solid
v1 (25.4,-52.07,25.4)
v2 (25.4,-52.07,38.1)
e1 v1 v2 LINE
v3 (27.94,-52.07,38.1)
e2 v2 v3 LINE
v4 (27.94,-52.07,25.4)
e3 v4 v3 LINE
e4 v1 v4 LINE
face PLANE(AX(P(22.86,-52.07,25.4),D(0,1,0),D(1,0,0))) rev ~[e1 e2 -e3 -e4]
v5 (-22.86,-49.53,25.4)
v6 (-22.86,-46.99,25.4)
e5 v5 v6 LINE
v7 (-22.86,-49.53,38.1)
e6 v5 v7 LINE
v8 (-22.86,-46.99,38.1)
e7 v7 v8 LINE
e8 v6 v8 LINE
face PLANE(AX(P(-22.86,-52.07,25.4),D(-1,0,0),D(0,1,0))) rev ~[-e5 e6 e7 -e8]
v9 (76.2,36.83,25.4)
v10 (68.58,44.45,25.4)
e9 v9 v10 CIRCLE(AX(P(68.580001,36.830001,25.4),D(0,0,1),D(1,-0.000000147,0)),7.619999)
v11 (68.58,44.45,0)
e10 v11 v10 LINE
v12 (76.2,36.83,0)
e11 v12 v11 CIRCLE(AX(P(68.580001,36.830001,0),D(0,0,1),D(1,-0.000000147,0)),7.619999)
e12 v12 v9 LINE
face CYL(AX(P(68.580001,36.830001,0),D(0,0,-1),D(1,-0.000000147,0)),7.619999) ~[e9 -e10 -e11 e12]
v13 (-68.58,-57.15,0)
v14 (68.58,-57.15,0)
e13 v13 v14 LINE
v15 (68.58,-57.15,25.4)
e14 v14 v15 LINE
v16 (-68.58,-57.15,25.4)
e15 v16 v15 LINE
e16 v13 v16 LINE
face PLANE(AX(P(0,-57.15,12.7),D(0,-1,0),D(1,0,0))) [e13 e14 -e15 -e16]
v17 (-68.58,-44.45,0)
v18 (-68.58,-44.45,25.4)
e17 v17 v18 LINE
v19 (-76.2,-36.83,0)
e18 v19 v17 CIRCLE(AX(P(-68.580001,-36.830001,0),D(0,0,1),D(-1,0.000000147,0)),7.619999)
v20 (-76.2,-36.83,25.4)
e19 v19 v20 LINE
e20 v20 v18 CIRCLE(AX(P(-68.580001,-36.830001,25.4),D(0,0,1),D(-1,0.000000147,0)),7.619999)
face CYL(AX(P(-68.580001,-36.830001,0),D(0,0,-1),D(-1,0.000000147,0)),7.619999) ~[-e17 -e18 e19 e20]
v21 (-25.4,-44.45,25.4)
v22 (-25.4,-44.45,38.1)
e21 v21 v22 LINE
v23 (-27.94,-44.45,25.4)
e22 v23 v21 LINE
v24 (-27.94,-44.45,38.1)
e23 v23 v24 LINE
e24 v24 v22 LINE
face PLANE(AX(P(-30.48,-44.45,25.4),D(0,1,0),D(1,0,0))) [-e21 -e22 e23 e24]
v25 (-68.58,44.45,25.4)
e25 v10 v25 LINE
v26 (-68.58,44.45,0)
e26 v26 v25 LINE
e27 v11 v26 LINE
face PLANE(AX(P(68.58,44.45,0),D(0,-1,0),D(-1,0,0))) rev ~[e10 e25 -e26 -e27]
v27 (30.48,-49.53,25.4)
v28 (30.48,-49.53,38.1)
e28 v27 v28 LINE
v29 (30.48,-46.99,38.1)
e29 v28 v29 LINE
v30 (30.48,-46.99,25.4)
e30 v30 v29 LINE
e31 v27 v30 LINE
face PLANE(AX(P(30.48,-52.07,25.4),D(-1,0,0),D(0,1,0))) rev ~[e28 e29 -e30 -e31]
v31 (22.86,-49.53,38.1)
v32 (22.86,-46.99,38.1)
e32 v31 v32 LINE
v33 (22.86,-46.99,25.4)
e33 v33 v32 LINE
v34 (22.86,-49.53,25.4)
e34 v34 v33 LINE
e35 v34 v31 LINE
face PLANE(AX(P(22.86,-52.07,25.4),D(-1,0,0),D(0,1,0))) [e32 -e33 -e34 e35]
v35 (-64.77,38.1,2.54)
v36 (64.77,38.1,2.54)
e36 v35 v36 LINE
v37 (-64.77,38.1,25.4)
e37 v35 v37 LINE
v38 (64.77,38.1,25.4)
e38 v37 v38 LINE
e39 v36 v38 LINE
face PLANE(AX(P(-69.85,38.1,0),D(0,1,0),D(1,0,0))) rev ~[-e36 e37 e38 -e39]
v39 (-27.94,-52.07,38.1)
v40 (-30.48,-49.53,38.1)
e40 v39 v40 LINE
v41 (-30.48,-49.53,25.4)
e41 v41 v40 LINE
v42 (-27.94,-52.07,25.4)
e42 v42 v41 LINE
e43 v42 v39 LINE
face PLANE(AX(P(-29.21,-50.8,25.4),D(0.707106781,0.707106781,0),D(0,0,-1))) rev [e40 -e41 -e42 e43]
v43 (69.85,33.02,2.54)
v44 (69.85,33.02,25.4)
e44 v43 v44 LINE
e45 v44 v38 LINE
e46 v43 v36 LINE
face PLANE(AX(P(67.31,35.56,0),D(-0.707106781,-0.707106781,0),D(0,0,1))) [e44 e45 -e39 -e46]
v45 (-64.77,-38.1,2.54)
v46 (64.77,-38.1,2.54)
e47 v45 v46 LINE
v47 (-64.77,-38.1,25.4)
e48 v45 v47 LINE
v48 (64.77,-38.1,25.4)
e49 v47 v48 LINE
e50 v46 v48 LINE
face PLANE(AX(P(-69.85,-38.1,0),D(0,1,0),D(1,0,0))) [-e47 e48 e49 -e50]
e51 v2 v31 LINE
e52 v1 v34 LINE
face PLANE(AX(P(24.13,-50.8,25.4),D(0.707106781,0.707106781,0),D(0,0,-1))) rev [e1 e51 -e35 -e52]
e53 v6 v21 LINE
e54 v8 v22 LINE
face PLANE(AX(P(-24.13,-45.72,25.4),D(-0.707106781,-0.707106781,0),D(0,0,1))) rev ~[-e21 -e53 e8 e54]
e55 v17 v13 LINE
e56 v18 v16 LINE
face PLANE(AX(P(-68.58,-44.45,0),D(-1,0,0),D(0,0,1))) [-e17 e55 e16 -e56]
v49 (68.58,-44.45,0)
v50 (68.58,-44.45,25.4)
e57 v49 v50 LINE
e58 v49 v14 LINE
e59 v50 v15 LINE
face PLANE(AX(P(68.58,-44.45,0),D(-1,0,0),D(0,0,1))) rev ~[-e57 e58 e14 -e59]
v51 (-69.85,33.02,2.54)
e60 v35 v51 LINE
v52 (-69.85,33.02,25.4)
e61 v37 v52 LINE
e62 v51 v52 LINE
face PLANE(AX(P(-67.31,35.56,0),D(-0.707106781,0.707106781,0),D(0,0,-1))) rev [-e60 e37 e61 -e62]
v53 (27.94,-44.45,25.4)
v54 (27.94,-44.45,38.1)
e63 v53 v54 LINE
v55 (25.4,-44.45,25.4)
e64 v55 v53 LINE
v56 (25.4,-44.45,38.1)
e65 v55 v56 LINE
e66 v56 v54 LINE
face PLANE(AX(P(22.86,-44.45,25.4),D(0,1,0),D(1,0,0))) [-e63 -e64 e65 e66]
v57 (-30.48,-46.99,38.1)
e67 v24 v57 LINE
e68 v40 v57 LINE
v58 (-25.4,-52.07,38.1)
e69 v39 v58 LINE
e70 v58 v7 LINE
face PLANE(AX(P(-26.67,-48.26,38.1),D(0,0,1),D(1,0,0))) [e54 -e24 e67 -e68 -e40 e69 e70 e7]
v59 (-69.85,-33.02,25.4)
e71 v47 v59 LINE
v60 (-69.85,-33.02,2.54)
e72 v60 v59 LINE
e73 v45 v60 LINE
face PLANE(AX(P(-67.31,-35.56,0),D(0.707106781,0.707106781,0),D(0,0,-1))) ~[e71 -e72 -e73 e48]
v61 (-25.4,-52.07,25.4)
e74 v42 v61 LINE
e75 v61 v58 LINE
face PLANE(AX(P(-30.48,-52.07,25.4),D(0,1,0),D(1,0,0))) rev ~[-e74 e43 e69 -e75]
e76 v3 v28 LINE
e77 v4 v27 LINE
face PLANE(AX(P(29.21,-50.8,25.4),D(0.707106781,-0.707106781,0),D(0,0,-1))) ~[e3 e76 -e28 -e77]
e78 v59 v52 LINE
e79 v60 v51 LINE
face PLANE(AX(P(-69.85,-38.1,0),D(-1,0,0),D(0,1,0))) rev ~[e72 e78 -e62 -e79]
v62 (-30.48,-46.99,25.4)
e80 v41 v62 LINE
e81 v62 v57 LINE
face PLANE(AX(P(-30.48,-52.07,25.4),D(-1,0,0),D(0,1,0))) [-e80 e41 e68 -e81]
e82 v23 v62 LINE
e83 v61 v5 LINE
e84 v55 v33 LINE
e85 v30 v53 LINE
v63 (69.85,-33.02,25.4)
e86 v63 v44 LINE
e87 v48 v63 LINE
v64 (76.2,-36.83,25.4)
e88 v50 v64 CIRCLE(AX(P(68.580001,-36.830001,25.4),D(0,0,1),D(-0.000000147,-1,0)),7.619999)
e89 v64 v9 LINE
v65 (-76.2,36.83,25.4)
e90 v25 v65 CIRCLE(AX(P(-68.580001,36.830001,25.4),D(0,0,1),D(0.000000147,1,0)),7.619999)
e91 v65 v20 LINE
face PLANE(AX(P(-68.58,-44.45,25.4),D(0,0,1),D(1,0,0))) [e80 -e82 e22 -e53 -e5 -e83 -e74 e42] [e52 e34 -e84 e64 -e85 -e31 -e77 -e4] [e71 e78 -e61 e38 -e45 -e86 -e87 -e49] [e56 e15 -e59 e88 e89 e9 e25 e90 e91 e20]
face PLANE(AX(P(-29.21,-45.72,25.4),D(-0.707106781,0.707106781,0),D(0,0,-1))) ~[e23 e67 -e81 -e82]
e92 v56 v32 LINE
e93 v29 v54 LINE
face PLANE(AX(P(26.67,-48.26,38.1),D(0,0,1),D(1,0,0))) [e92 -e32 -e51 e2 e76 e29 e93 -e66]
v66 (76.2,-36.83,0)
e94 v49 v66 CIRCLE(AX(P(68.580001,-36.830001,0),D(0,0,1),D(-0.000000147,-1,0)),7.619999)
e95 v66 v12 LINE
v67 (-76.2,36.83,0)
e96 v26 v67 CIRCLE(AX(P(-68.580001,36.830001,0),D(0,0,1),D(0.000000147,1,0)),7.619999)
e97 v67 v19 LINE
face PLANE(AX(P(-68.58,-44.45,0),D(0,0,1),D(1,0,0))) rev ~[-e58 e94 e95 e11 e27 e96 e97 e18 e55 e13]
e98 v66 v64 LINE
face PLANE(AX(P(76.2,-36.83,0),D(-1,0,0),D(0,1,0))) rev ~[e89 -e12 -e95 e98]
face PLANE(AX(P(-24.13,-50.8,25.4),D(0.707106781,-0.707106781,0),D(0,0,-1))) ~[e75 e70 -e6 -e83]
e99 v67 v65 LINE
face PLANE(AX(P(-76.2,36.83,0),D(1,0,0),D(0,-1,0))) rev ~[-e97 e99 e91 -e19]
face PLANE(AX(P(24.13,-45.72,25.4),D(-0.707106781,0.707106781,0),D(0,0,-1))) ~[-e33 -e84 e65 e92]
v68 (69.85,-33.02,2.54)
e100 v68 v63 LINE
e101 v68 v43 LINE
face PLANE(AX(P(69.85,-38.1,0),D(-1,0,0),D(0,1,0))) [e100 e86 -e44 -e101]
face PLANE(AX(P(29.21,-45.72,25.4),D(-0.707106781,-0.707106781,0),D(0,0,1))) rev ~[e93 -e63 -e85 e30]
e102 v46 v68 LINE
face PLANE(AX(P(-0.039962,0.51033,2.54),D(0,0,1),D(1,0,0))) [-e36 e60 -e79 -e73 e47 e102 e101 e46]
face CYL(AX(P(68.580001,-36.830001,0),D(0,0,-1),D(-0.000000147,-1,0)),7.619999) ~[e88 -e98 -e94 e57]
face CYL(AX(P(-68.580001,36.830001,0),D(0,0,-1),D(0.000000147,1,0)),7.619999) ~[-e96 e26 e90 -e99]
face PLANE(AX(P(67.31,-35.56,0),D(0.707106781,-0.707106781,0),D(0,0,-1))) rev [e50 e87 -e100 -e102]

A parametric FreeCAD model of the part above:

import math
import FreeCAD as App
import Part
import Sketcher

V = App.Vector
Q = App.Units.Quantity


def edges_at(feature, points):
    """Names of the edges that pass closest to the given points."""
    edges = feature.Shape.Edges
    near = lambda p: min(range(len(edges)), key=lambda i: edges[i].distToShape(Part.Vertex(*p))[0])
    return sorted({f"Edge{near(p) + 1}" for p in points})

doc = App.newDocument("Part")
body = doc.addObject("PartDesign::Body", "Body")

# Sketch on XY plane
sketch1 = body.newObject("Sketcher::SketchObject", "Sketch")
sketch1.AttachmentSupport = (doc.getObject("XY_Plane"), [""])
sketch1.MapMode = "FlatFace"
sketch1.addGeometry(Part.ArcOfCircle(Part.Circle(V(69, 37, 0), V(0, 0, 1), 8), math.radians(0), math.radians(90)), False)
sketch1.addGeometry(Part.LineSegment(V(69, 44, 0), V(-69, 44, 0)), False)
sketch1.addGeometry(Part.ArcOfCircle(Part.Circle(V(-69, 37, 0), V(0, 0, 1), 8), math.radians(90), math.radians(180)), False)
sketch1.addGeometry(Part.LineSegment(V(-76, 37, 0), V(-76, -37, 0)), False)
sketch1.addGeometry(Part.ArcOfCircle(Part.Circle(V(-69, -37, 0), V(0, 0, 1), 8), math.radians(180), math.radians(270)), False)
sketch1.addGeometry(Part.LineSegment(V(-69, -44, 0), V(69, -44, 0)), False)
sketch1.addGeometry(Part.ArcOfCircle(Part.Circle(V(69, -37, 0), V(0, 0, 1), 8), math.radians(-90), math.radians(0)), False)
sketch1.addGeometry(Part.LineSegment(V(76, -37, 0), V(76, 37, 0)), False)
sketch1.addGeometry(Part.LineSegment(V(70, -38, 0), V(-70, -38, 0)), False)
sketch1.addGeometry(Part.LineSegment(V(-70, -38, 0), V(-70, 38, 0)), False)
sketch1.addGeometry(Part.LineSegment(V(-70, 38, 0), V(70, 38, 0)), False)
sketch1.addGeometry(Part.LineSegment(V(70, 38, 0), V(70, -38, 0)), False)
sketch1.addConstraint(Sketcher.Constraint("Tangent", 0, 2, 1, 1))
sketch1.addConstraint(Sketcher.Constraint("Tangent", 1, 2, 2, 1))
sketch1.addConstraint(Sketcher.Constraint("Tangent", 2, 2, 3, 1))
sketch1.addConstraint(Sketcher.Constraint("Tangent", 3, 2, 4, 1))
sketch1.addConstraint(Sketcher.Constraint("Tangent", 4, 2, 5, 1))
sketch1.addConstraint(Sketcher.Constraint("Tangent", 5, 2, 6, 1))
sketch1.addConstraint(Sketcher.Constraint("Tangent", 6, 2, 7, 1))
sketch1.addConstraint(Sketcher.Constraint("Tangent", 7, 2, 0, 1))
sketch1.addConstraint(Sketcher.Constraint("Coincident", 8, 2, 9, 1))
sketch1.addConstraint(Sketcher.Constraint("Coincident", 9, 2, 10, 1))
sketch1.addConstraint(Sketcher.Constraint("Coincident", 10, 2, 11, 1))
sketch1.addConstraint(Sketcher.Constraint("Coincident", 11, 2, 8, 1))
sketch1.addConstraint(Sketcher.Constraint("Horizontal", 1))
sketch1.addConstraint(Sketcher.Constraint("Vertical", 3))
sketch1.addConstraint(Sketcher.Constraint("Horizontal", 5))
sketch1.addConstraint(Sketcher.Constraint("Vertical", 7))
sketch1.addConstraint(Sketcher.Constraint("Horizontal", 8))
sketch1.addConstraint(Sketcher.Constraint("Vertical", 9))
sketch1.addConstraint(Sketcher.Constraint("Horizontal", 10))
sketch1.addConstraint(Sketcher.Constraint("Vertical", 11))
sketch1.addConstraint(Sketcher.Constraint("Equal", 0, 2))
sketch1.addConstraint(Sketcher.Constraint("Equal", 2, 4))
sketch1.addConstraint(Sketcher.Constraint("Equal", 4, 6))
sketch1.addConstraint(Sketcher.Constraint("Symmetric", 0, 3, 4, 3, -1, 1))
sketch1.addConstraint(Sketcher.Constraint("Symmetric", 8, 2, 10, 2, -1, 1))
sketch1.addConstraint(Sketcher.Constraint("Radius", 0, Q("0.3 in")))
sketch1.addConstraint(Sketcher.Constraint("DistanceY", 9, 1, 9, 2, Q("3 in")))
sketch1.addConstraint(Sketcher.Constraint("DistanceX", 1, 2, 1, 1, Q("5.4 in")))
sketch1.addConstraint(Sketcher.Constraint("DistanceX", 8, 2, 8, 1, Q("5.5 in")))
sketch1.addConstraint(Sketcher.Constraint("DistanceY", 3, 2, 3, 1, Q("2.9 in")))
pad1 = body.newObject("PartDesign::Pad", "Pad")
pad1.Profile = sketch1
pad1.Length = Q("1 in")
doc.recompute()

chamfer = body.newObject("PartDesign::Chamfer", "Chamfer")
chamfer.Base = (pad1, edges_at(pad1, [
    (-69.85, 38.1, 12.7),
    (-69.85, -38.1, 12.7),
    (69.85, 38.1, 12.7),
    (69.85, -38.1, 12.7),
]))
chamfer.Size = Q("0.2 in")

# Sketch on XY plane
sketch2 = body.newObject("Sketcher::SketchObject", "Sketch001")
sketch2.AttachmentSupport = (doc.getObject("XY_Plane"), [""])
sketch2.MapMode = "FlatFace"
sketch2.addGeometry(Part.LineSegment(V(-72, 41, 0), V(-72, -40, 0)), False)
sketch2.addGeometry(Part.LineSegment(V(-72, -40, 0), V(72, -40, 0)), False)
sketch2.addGeometry(Part.LineSegment(V(72, -40, 0), V(72, 41, 0)), False)
sketch2.addGeometry(Part.LineSegment(V(72, 41, 0), V(-72, 41, 0)), False)
sketch2.addConstraint(Sketcher.Constraint("Coincident", 0, 2, 1, 1))
sketch2.addConstraint(Sketcher.Constraint("Coincident", 1, 2, 2, 1))
sketch2.addConstraint(Sketcher.Constraint("Coincident", 2, 2, 3, 1))
sketch2.addConstraint(Sketcher.Constraint("Coincident", 3, 2, 0, 1))
sketch2.addConstraint(Sketcher.Constraint("Vertical", 0))
sketch2.addConstraint(Sketcher.Constraint("Horizontal", 1))
sketch2.addConstraint(Sketcher.Constraint("Vertical", 2))
sketch2.addConstraint(Sketcher.Constraint("Horizontal", 3))
sketch2.addConstraint(Sketcher.Constraint("DistanceY", 0, 2, 0, 1, Q("81.529271 mm")))
sketch2.addConstraint(Sketcher.Constraint("DistanceX", -1, 1, 1, 2, Q("72.1056 mm")))
sketch2.addConstraint(Sketcher.Constraint("DistanceX", 1, 1, 1, 2, Q("144.291125 mm")))
sketch2.addConstraint(Sketcher.Constraint("DistanceY", 0, 2, -1, 1, Q("40.254306 mm")))
pad2 = body.newObject("PartDesign::Pad", "Pad001")
pad2.Profile = sketch2
pad2.Length = Q("0.1 in")

# Sketch on XZ plane
sketch3 = body.newObject("Sketcher::SketchObject", "Sketch002")
sketch3.AttachmentSupport = (doc.getObject("XZ_Plane"), [""])
sketch3.MapMode = "FlatFace"
sketch3.AttachmentOffset = App.Placement(V(0, 0, 1.75 * 25.4), App.Rotation())
sketch3.addGeometry(Part.LineSegment(V(-69, 25, 0), V(-69, 0, 0)), False)
sketch3.addGeometry(Part.LineSegment(V(-69, 0, 0), V(69, 0, 0)), False)
sketch3.addGeometry(Part.LineSegment(V(69, 0, 0), V(69, 25, 0)), False)
sketch3.addGeometry(Part.LineSegment(V(69, 25, 0), V(-69, 25, 0)), False)
sketch3.addConstraint(Sketcher.Constraint("Coincident", 0, 2, 1, 1))
sketch3.addConstraint(Sketcher.Constraint("Coincident", 1, 2, 2, 1))
sketch3.addConstraint(Sketcher.Constraint("Coincident", 2, 2, 3, 1))
sketch3.addConstraint(Sketcher.Constraint("Coincident", 3, 2, 0, 1))
sketch3.addConstraint(Sketcher.Constraint("Vertical", 0))
sketch3.addConstraint(Sketcher.Constraint("Horizontal", 1))
sketch3.addConstraint(Sketcher.Constraint("Vertical", 2))
sketch3.addConstraint(Sketcher.Constraint("Horizontal", 3))
sketch3.addConstraint(Sketcher.Constraint("Symmetric", 0, 2, 1, 2, -1, 1))
sketch3.addConstraint(Sketcher.Constraint("DistanceY", 0, 2, 0, 1, Q("1 in")))
sketch3.addConstraint(Sketcher.Constraint("DistanceX", 1, 1, 1, 2, Q("5.4 in")))
pad3 = body.newObject("PartDesign::Pad", "Pad002")
pad3.Profile = sketch3
pad3.Length = Q("0.5 in")

# Sketch on XY plane
sketch4 = body.newObject("Sketcher::SketchObject", "Sketch003")
sketch4.AttachmentSupport = (doc.getObject("XY_Plane"), [""])
sketch4.MapMode = "FlatFace"
sketch4.AttachmentOffset = App.Placement(V(0, 0, 1 * 25.4), App.Rotation())
sketch4.addGeometry(Part.LineSegment(V(23, -44, 0), V(23, -52, 0)), False)
sketch4.addGeometry(Part.LineSegment(V(23, -52, 0), V(30, -52, 0)), False)
sketch4.addGeometry(Part.LineSegment(V(30, -52, 0), V(30, -44, 0)), False)
sketch4.addGeometry(Part.LineSegment(V(30, -44, 0), V(23, -44, 0)), False)
sketch4.addGeometry(Part.LineSegment(V(-30, -44, 0), V(-30, -52, 0)), False)
sketch4.addGeometry(Part.LineSegment(V(-30, -52, 0), V(-23, -52, 0)), False)
sketch4.addGeometry(Part.LineSegment(V(-23, -52, 0), V(-23, -44, 0)), False)
sketch4.addGeometry(Part.LineSegment(V(-23, -44, 0), V(-30, -44, 0)), False)
sketch4.addConstraint(Sketcher.Constraint("Coincident", 0, 2, 1, 1))
sketch4.addConstraint(Sketcher.Constraint("Coincident", 1, 2, 2, 1))
sketch4.addConstraint(Sketcher.Constraint("Coincident", 2, 2, 3, 1))
sketch4.addConstraint(Sketcher.Constraint("Coincident", 3, 2, 0, 1))
sketch4.addConstraint(Sketcher.Constraint("Coincident", 4, 2, 5, 1))
sketch4.addConstraint(Sketcher.Constraint("Coincident", 5, 2, 6, 1))
sketch4.addConstraint(Sketcher.Constraint("Coincident", 6, 2, 7, 1))
sketch4.addConstraint(Sketcher.Constraint("Coincident", 7, 2, 4, 1))
sketch4.addConstraint(Sketcher.Constraint("Vertical", 0))
sketch4.addConstraint(Sketcher.Constraint("Horizontal", 1))
sketch4.addConstraint(Sketcher.Constraint("Vertical", 2))
sketch4.addConstraint(Sketcher.Constraint("Horizontal", 3))
sketch4.addConstraint(Sketcher.Constraint("Vertical", 4))
sketch4.addConstraint(Sketcher.Constraint("Horizontal", 5))
sketch4.addConstraint(Sketcher.Constraint("Vertical", 6))
sketch4.addConstraint(Sketcher.Constraint("Horizontal", 7))
sketch4.addConstraint(Sketcher.Constraint("Symmetric", 1, 2, 4, 2, -2))
sketch4.addConstraint(Sketcher.Constraint("Symmetric", 3, 2, 6, 2, -2))
sketch4.addConstraint(Sketcher.Constraint("Equal", 7, 0))
sketch4.addConstraint(Sketcher.Constraint("DistanceX", 1, 1, 1, 2, Q("0.3 in")))
sketch4.addConstraint(Sketcher.Constraint("DistanceX", -1, 1, 0, 2, Q("0.9 in")))
sketch4.addConstraint(Sketcher.Constraint("DistanceY", 0, 2, -1, 1, Q("2.05 in")))
pad4 = body.newObject("PartDesign::Pad", "Pad003")
pad4.Profile = sketch4
pad4.Length = Q("0.5 in")
doc.recompute()

chamfer2 = body.newObject("PartDesign::Chamfer", "Chamfer001")
chamfer2.Base = (pad4, edges_at(pad4, [(30.48, -44.45, 31.75)]))
chamfer2.Size = Q("0.1 in")
doc.recompute()

chamfer3 = body.newObject("PartDesign::Chamfer", "Chamfer002")
chamfer3.Base = (chamfer2, edges_at(chamfer2, [(22.86, -44.45, 31.75), (22.86, -52.07, 31.75)]))
chamfer3.Size = Q("0.1 in")
doc.recompute()

chamfer4 = body.newObject("PartDesign::Chamfer", "Chamfer003")
chamfer4.Base = (chamfer3, edges_at(chamfer3, [(30.48, -52.07, 31.75)]))
chamfer4.Size = Q("0.1 in")
doc.recompute()

chamfer5 = body.newObject("PartDesign::Chamfer", "Chamfer004")
chamfer5.Base = (chamfer4, edges_at(chamfer4, [
    (-30.48, -44.45, 31.75),
    (-22.86, -44.45, 31.75),
    (-30.48, -52.07, 31.75),
    (-22.86, -52.07, 31.75),
]))
chamfer5.Size = Q("0.1 in")

doc.recompute()
